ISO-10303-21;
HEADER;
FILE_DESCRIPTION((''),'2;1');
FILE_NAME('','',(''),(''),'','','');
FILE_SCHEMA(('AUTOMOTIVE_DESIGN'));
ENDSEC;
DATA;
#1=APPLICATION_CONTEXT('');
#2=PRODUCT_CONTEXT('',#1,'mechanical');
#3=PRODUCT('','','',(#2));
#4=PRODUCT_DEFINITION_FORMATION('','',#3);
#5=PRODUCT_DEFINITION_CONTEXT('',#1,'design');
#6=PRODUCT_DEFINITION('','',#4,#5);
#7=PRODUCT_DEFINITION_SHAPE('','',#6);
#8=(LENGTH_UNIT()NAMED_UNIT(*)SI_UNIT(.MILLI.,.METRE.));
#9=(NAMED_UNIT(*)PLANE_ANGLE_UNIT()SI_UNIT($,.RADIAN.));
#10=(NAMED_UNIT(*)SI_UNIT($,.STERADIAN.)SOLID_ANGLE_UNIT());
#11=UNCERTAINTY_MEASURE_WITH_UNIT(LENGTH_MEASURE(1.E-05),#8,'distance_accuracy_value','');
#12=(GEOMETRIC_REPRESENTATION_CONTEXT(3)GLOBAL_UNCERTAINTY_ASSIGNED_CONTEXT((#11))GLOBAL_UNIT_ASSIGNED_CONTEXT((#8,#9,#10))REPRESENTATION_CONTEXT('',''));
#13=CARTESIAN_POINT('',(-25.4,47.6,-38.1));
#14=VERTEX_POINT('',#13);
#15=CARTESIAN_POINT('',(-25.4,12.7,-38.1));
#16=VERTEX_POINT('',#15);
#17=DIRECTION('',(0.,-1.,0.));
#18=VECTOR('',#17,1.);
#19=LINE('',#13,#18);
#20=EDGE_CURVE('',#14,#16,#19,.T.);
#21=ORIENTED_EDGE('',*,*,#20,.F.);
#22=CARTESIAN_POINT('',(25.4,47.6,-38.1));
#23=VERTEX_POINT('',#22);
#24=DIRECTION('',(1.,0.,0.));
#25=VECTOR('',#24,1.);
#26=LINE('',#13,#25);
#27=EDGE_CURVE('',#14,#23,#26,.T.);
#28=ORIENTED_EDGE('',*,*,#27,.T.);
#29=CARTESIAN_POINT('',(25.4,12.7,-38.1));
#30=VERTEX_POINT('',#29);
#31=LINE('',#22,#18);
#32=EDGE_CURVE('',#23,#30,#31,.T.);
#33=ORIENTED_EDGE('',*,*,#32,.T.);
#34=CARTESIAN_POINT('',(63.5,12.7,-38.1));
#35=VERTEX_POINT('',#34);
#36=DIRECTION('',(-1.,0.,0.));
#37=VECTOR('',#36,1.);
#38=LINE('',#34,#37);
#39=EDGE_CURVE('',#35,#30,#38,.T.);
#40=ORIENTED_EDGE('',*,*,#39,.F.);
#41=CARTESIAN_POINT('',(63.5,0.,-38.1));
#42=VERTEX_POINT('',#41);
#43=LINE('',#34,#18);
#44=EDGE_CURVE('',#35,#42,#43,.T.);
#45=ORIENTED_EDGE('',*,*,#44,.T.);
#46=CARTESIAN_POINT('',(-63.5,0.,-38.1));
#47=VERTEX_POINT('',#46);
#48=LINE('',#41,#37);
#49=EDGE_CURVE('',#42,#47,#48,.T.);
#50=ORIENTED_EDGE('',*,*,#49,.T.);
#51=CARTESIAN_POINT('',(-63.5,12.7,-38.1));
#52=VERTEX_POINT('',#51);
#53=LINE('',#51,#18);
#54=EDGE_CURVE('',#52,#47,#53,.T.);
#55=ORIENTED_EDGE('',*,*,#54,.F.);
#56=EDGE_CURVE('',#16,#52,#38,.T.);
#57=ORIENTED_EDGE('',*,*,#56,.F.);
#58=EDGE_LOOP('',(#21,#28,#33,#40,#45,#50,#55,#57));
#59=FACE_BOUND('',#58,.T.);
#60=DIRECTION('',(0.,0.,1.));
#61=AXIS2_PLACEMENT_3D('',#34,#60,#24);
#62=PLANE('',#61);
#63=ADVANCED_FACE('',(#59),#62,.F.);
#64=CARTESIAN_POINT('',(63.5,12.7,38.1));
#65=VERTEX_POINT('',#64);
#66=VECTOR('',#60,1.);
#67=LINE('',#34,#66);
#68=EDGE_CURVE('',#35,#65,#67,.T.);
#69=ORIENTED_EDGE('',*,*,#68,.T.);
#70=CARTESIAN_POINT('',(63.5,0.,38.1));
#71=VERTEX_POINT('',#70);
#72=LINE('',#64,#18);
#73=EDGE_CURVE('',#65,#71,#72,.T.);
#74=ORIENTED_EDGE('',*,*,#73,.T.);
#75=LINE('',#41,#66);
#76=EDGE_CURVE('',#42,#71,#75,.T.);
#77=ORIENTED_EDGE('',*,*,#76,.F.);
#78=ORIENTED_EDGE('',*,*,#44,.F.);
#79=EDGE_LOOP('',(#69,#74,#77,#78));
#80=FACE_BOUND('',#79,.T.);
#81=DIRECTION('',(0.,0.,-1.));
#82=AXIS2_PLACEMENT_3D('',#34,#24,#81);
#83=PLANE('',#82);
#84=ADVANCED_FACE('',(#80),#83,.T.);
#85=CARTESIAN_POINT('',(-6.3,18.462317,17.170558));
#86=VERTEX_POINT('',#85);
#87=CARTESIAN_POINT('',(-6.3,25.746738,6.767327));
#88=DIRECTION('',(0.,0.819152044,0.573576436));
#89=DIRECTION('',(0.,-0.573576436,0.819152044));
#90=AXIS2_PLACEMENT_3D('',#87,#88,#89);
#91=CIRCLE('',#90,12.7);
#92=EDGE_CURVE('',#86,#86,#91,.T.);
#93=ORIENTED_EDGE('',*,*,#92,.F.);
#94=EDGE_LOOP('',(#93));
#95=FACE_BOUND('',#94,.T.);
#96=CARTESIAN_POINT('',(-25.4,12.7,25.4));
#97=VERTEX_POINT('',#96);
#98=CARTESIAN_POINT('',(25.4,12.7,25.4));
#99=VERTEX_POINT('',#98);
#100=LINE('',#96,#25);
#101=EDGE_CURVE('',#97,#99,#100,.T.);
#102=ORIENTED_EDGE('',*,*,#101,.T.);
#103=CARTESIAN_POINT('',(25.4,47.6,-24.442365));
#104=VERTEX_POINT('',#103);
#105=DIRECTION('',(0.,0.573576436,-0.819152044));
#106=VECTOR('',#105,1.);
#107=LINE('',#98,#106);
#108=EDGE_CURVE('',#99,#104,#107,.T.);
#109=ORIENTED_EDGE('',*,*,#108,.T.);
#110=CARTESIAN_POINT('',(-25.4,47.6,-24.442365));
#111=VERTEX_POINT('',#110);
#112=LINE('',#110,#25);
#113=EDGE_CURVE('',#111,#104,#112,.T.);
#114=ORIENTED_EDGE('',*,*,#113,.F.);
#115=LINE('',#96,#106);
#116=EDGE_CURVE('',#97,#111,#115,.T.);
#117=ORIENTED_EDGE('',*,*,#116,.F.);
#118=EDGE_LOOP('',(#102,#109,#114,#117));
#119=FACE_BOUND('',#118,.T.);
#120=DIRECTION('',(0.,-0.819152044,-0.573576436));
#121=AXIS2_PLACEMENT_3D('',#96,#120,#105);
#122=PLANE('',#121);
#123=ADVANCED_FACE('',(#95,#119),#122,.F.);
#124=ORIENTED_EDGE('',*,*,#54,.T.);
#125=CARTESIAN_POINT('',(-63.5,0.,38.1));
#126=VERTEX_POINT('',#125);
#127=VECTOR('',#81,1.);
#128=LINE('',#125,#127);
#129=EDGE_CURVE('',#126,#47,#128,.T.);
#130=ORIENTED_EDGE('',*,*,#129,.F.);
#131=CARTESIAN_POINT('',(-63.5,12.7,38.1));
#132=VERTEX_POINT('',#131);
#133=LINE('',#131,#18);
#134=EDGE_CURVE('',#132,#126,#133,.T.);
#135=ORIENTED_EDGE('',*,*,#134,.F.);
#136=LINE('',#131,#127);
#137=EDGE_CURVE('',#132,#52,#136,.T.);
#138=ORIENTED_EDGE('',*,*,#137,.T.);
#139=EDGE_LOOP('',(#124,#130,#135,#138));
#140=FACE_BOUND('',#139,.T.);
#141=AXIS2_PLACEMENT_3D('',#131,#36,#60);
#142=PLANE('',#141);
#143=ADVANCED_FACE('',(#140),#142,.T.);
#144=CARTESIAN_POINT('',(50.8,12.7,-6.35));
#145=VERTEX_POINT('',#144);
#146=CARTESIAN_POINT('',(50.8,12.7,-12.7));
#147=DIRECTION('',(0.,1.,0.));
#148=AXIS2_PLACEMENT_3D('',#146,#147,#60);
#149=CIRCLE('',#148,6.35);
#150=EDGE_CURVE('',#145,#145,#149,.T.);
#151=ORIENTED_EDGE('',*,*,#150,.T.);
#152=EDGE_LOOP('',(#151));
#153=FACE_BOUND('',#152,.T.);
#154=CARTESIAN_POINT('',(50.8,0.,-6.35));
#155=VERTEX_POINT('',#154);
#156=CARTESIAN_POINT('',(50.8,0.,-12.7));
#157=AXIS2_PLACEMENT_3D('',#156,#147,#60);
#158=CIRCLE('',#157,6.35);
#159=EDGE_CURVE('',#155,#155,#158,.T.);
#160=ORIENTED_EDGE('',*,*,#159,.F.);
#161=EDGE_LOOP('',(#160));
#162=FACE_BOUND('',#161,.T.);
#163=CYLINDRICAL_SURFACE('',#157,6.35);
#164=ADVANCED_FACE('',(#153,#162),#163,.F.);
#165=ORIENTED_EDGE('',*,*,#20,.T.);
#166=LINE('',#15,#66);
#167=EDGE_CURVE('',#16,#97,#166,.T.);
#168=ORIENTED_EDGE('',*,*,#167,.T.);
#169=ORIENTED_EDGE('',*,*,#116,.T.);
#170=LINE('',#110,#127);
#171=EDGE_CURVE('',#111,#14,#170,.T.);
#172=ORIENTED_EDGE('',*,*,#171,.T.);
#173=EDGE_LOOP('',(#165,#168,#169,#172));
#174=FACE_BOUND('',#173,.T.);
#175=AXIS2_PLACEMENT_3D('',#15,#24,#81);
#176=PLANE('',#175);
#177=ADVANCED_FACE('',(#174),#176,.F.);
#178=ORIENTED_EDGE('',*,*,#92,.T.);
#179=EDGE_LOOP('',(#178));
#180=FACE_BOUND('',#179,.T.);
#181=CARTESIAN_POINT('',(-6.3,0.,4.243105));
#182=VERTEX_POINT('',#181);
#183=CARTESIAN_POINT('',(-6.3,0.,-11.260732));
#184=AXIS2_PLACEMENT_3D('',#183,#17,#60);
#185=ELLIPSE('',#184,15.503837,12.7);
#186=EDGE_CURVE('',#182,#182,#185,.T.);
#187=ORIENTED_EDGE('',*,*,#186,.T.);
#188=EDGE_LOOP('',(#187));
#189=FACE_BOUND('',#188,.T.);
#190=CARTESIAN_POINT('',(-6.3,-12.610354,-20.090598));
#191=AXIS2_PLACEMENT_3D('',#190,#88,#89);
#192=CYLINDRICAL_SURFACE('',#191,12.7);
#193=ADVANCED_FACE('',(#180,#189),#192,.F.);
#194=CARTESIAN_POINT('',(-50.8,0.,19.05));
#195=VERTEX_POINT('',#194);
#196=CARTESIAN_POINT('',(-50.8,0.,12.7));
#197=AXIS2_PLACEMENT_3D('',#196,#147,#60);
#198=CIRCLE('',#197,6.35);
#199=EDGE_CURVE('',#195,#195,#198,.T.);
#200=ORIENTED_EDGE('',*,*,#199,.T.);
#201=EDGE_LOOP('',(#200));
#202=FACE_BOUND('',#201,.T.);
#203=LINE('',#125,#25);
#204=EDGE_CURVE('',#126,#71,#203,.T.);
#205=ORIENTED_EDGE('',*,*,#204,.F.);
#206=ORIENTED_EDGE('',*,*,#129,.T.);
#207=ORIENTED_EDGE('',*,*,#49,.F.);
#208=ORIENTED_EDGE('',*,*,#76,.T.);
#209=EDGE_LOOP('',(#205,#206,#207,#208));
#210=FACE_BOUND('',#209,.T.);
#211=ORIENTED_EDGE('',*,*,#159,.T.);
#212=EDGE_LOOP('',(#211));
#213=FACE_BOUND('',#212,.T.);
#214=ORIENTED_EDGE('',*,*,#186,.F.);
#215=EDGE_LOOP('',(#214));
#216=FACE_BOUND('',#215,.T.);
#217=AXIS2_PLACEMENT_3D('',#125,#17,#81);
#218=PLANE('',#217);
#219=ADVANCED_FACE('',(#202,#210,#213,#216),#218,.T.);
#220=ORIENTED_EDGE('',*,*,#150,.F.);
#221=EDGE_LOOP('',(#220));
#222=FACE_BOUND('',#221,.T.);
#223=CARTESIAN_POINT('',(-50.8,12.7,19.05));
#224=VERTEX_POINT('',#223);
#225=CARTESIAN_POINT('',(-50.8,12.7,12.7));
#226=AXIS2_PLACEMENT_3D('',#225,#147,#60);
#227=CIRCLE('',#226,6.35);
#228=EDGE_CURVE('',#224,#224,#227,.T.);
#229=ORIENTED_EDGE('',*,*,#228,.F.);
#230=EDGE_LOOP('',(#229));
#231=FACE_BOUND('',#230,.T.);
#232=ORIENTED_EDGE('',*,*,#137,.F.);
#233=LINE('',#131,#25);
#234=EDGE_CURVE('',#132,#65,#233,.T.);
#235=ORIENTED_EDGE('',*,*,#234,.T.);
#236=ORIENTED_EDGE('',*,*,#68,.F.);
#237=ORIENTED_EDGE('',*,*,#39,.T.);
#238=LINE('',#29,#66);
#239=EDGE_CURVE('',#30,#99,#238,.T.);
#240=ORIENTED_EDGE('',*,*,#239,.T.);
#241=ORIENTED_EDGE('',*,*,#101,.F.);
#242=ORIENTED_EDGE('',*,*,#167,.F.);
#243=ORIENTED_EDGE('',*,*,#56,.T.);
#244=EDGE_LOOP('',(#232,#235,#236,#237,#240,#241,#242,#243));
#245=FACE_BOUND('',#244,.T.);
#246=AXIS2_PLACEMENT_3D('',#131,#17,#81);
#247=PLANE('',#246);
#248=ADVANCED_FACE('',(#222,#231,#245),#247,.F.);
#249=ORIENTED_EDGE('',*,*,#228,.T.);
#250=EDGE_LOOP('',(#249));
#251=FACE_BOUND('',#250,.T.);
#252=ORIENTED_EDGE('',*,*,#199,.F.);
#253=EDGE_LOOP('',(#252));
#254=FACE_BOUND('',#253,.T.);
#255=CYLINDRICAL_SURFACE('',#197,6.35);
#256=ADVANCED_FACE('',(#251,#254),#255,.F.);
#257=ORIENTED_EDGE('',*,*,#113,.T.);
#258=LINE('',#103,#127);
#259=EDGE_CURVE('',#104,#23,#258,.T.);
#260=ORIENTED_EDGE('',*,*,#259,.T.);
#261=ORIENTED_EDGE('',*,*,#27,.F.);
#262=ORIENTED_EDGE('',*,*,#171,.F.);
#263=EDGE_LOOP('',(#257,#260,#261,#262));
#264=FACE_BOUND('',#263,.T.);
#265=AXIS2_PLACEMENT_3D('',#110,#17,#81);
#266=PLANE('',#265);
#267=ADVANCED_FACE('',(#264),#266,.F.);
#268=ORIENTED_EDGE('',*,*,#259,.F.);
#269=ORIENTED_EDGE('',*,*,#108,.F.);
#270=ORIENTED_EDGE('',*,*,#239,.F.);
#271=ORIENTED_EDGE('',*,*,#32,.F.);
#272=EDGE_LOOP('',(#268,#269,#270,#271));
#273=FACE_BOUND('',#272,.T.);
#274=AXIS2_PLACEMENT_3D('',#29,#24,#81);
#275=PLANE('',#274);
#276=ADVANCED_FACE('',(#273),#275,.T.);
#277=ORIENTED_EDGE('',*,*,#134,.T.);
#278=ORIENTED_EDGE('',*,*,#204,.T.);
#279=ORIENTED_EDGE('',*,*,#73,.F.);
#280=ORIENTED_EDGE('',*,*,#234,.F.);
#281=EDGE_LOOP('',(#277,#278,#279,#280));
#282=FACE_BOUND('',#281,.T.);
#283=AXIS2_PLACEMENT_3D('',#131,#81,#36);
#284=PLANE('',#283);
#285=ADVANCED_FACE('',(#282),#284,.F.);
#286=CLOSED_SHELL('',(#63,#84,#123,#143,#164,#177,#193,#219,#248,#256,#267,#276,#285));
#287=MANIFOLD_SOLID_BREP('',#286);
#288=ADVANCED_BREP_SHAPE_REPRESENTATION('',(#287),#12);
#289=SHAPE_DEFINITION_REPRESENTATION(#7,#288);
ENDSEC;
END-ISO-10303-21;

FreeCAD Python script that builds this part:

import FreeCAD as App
import Part
import Sketcher

V = App.Vector
Q = App.Units.Quantity


def add_polygon(sketch, points):
    """Adds a closed chain of lines whose ends are joined by coincident constraints."""
    first, n = sketch.GeometryCount, len(points)
    for a, b in zip(points, points[1:] + points[:1]):
        sketch.addGeometry(Part.LineSegment(App.Vector(*a, 0), App.Vector(*b, 0)), False)
    for i in range(n):
        sketch.addConstraint(Sketcher.Constraint("Coincident", first + i, 2, first + (i + 1) % n, 1))

doc = App.newDocument("Part")
body = doc.addObject("PartDesign::Body", "Body")

# Sketch on XZ plane
sketch1 = body.newObject("Sketcher::SketchObject", "Sketch")
sketch1.AttachmentSupport = (doc.getObject("XZ_Plane"), [""])
sketch1.MapMode = "FlatFace"
add_polygon(sketch1, [(-64, -38), (-64, 38), (64, 38), (64, -38)])  # lines 0-3
sketch1.addConstraint([
    Sketcher.Constraint("Vertical", 0),
    Sketcher.Constraint("Horizontal", 1),
    Sketcher.Constraint("Vertical", 2),
    Sketcher.Constraint("Horizontal", 3),
    Sketcher.Constraint("Symmetric", 0, 2, 2, 2, -1, 1),
    Sketcher.Constraint("DistanceX", 1, 1, 1, 2, Q("5 in")),
    Sketcher.Constraint("DistanceY", 0, 1, 0, 2, Q("3 in")),
])
pad1 = body.newObject("PartDesign::Pad", "Pad")
pad1.Profile = sketch1
pad1.Length = Q("0.5 in")
pad1.Reversed = True

# Sketch on YZ plane
sketch2 = body.newObject("Sketcher::SketchObject", "Sketch001")
sketch2.AttachmentSupport = (doc.getObject("YZ_Plane"), [""])
sketch2.MapMode = "FlatFace"
add_polygon(sketch2, [(48, -24), (13, 25), (13, -38), (48, -38)])  # lines 0-3
sketch2.addConstraint([
    Sketcher.Constraint("Vertical", 1),
    Sketcher.Constraint("Horizontal", 2),
    Sketcher.Constraint("Vertical", 3),
    Sketcher.Constraint("DistanceY", 1, 2, 1, 1, Q("2.5 in")),
    Sketcher.Constraint("DistanceY", -1, 1, 0, 2, Q("1 in")),
    Sketcher.Constraint("Angle", 0, Q("125 deg")),
    Sketcher.Constraint("DistanceX", -1, 1, 0, 2, Q("0.5 in")),
    Sketcher.Constraint("DistanceX", 2, 1, 2, 2, 34.9),
])
pad2 = body.newObject("PartDesign::Pad", "Pad001")
pad2.Profile = sketch2
pad2.Length = Q("2 in")
pad2.Midplane = True

# Sketch on XZ plane
sketch3 = body.newObject("Sketcher::SketchObject", "Sketch002")
sketch3.AttachmentSupport = (doc.getObject("XZ_Plane"), [""])
sketch3.MapMode = "FlatFace"
sketch3.AttachmentOffset = App.Placement(V(0, 0, -0.5 * 25.4), App.Rotation())
sketch3.addGeometry([
    Part.Circle(V(51, -13, 0), V(0, 0, 1), 6),
    Part.Circle(V(-51, 13, 0), V(0, 0, 1), 6),
], False)
sketch3.addConstraint([
    Sketcher.Constraint("Equal", 0, 1),
    Sketcher.Constraint("Symmetric", 0, 3, 1, 3, -1, 1),
    Sketcher.Constraint("Diameter", 0, Q("0.5 in")),
    Sketcher.Constraint("DistanceX", -1, 1, 0, 3, Q("2 in")),
    Sketcher.Constraint("DistanceY", 0, 3, 1, 3, Q("1 in")),
])
pocket1 = body.newObject("PartDesign::Pocket", "Pocket")
pocket1.Profile = sketch3
pocket1.Type = "ThroughAll"
pocket1.Reversed = True

# Sketch on an angled plane
sketch4 = body.newObject("Sketcher::SketchObject", "Sketch003")
sketch4.Placement = App.Placement(V(0, 20.455924, 14.323392), App.Rotation(V(-1, 0, 0), V(0, -0.573576436, 0.819152044), V(0, 0.819152044, 0.573576436), "ZXY"))
sketch4.addGeometry(Part.Circle(V(6, -9, 0), V(0, 0, 1), 13), False)
sketch4.addConstraint([
    Sketcher.Constraint("Diameter", 0, Q("1 in")),
    Sketcher.Constraint("DistanceX", -1, 1, 0, 3, 6.3),
    Sketcher.Constraint("DistanceY", 0, 3, -1, 1, 9.224252),
])
pocket2 = body.newObject("PartDesign::Pocket", "Pocket001")
pocket2.Profile = sketch4
pocket2.Type = "ThroughAll"

doc.recompute()
